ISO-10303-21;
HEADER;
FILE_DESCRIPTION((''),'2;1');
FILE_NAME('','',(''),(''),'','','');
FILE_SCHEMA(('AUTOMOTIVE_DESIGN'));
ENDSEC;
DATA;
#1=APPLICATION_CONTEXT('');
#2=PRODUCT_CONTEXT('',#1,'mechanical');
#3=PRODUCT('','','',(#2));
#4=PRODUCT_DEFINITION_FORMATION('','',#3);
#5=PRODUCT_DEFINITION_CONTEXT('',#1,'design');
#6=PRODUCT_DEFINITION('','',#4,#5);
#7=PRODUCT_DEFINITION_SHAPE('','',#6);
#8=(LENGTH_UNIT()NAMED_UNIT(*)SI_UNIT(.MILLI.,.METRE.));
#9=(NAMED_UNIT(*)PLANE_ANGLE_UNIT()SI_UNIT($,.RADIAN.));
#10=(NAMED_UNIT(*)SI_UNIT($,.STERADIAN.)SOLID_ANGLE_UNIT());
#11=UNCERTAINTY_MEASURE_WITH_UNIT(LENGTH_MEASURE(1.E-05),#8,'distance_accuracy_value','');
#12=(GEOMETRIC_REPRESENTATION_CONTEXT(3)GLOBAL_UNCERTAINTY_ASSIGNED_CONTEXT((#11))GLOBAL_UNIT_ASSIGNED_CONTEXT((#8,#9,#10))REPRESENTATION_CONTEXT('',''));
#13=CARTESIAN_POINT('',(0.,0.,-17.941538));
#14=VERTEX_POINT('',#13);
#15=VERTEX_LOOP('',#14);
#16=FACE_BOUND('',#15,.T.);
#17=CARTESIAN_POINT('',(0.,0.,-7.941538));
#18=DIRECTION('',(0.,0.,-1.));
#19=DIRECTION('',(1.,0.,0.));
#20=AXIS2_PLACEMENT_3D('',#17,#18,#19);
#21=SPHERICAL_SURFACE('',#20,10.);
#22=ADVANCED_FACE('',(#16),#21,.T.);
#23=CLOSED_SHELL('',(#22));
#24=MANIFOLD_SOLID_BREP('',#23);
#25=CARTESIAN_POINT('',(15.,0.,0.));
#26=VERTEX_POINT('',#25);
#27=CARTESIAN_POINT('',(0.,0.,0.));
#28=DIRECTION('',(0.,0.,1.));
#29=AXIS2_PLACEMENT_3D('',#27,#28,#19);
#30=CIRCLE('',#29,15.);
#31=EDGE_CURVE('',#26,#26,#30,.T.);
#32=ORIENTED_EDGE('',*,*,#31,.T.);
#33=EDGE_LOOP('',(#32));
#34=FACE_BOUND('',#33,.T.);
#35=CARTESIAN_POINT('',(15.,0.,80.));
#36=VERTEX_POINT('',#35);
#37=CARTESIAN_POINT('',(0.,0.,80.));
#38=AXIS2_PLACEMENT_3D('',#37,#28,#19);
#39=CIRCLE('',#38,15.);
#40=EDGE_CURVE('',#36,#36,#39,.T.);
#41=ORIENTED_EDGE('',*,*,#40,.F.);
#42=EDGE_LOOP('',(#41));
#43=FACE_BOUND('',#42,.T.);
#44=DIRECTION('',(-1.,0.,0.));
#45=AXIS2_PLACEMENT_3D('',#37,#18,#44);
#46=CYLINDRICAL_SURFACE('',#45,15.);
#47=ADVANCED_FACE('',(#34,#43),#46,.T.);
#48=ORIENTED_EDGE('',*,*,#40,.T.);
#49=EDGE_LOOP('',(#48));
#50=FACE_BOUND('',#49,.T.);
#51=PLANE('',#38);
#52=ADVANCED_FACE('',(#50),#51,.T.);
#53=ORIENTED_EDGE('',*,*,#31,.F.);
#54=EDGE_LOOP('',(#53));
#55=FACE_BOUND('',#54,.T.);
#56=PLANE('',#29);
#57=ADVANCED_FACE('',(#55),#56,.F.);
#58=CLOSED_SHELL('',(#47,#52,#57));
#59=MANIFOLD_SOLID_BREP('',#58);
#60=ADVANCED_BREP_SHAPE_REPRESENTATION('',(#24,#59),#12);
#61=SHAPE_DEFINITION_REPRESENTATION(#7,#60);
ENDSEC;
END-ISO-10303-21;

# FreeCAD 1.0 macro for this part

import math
import FreeCAD as App
import Part
import Sketcher

V = App.Vector

doc = App.newDocument("Part")
params = doc.addObject("Spreadsheet::Sheet", "Params")
for row, (alias, value) in enumerate([
    ("sketch1_diameter", "30 mm"),
    ("pad1_length", "80 mm"),
    ("sketch2_radius", "10 mm"),
    ("revolution_angle", "360 deg"),
], start=1):
    params.set(f"A{row}", alias)
    params.set(f"B{row}", "=" + value)
    params.setAlias(f"B{row}", alias)

body = doc.addObject("PartDesign::Body", "Body")

# Sketch on XY plane
sketch1 = body.newObject("Sketcher::SketchObject", "Sketch")
sketch1.AttachmentSupport = (doc.getObject("XY_Plane"), [""])
sketch1.MapMode = "FlatFace"
sketch1.addGeometry(Part.Circle(V(0, 0, 0), V(0, 0, 1), 15), False)
sketch1.addConstraint([
    Sketcher.Constraint("Coincident", 0, 3, -1, 1),
    Sketcher.Constraint("Diameter", 0, 30.0),
])
sketch1.setExpression("Constraints[1]", "Params.sketch1_diameter")
pad1 = body.newObject("PartDesign::Pad", "Pad")
pad1.Profile = sketch1
pad1.setExpression("Length", "Params.pad1_length")
body2 = doc.addObject("PartDesign::Body", "Body001")

# Sketch on XZ plane
sketch2 = body2.newObject("Sketcher::SketchObject", "Sketch001")
sketch2.AttachmentSupport = (doc.getObject("XZ_Plane001"), [""])
sketch2.MapMode = "FlatFace"
sketch2.addGeometry([
    Part.LineSegment(V(0, 2.058462, 0), V(0, -17.941538, 0)),
    Part.ArcOfCircle(Part.Circle(V(0, -7.941538, 0), V(0, 0, 1), 10), math.radians(90), math.radians(270)),
], False)
sketch2.addConstraint([
    Sketcher.Constraint("Coincident", 0, 1, 1, 1),
    Sketcher.Constraint("Coincident", 1, 2, 0, 2),
    Sketcher.Constraint("Vertical", 0),
    Sketcher.Constraint("PointOnObject", 1, 3, -2),
    Sketcher.Constraint("PointOnObject", 0, 1, -2),
    Sketcher.Constraint("Radius", 1, 10.0),
    Sketcher.Constraint("DistanceY", 1, 3, -1, 1, 7.941538),
])
sketch2.setExpression("Constraints[5]", "Params.sketch2_radius")
revolution = body2.newObject("PartDesign::Revolution", "Revolution")
revolution.Profile = sketch2
revolution.ReferenceAxis = (sketch2, ["V_Axis"])
revolution.setExpression("Angle", "Params.revolution_angle")

doc.recompute()
